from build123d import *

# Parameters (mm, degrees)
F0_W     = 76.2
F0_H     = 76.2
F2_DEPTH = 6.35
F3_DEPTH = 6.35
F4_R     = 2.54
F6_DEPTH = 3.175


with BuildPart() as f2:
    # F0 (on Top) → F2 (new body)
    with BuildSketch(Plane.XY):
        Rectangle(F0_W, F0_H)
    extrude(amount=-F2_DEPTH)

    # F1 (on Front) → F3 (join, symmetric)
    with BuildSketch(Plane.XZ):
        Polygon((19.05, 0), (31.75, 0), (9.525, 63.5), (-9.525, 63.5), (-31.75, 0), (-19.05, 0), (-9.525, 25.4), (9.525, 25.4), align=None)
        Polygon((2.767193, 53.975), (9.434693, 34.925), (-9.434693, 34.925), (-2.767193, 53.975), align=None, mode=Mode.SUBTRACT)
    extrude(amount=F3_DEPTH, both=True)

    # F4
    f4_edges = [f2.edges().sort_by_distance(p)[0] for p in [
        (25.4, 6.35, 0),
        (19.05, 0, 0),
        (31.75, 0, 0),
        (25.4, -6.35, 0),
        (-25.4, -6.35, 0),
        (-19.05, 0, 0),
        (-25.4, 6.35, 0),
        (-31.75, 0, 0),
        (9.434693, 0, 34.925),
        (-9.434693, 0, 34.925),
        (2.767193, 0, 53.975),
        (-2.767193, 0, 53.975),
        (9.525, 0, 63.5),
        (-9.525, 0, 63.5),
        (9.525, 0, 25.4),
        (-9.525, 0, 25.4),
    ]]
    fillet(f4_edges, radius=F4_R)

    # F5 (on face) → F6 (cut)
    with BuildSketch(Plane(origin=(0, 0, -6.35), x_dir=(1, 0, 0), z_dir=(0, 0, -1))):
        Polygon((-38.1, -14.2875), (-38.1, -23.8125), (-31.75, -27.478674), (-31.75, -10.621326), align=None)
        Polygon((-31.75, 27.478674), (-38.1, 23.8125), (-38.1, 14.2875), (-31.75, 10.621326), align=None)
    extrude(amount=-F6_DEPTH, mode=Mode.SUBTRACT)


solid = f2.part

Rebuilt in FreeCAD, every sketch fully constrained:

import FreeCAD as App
import Part
import Sketcher
from FreeCAD import Vector
Q = App.Units.Quantity


def edges_at(feature, points):
    """Names of the edges that pass closest to the given points."""
    edges = feature.Shape.Edges
    near = lambda p: min(range(len(edges)), key=lambda i: edges[i].distToShape(Part.Vertex(*p))[0])
    return sorted({f"Edge{near(p) + 1}" for p in points})

doc = App.newDocument("Part")
body = doc.addObject("PartDesign::Body", "Body")

sketch1 = body.newObject("Sketcher::SketchObject", "Sketch")
sketch1.AttachmentSupport = (doc.getObject("XY_Plane"), [""])
sketch1.MapMode = "FlatFace"
sketch1.addGeometry([
    Part.LineSegment(Vector(-38, 38, 0), Vector(-38, -38, 0)),
    Part.LineSegment(Vector(-38, -38, 0), Vector(38, -38, 0)),
    Part.LineSegment(Vector(38, -38, 0), Vector(38, 38, 0)),
    Part.LineSegment(Vector(38, 38, 0), Vector(-38, 38, 0)),
], False)
sketch1.addConstraint([
    Sketcher.Constraint("Coincident", 0, 2, 1, 1),
    Sketcher.Constraint("Coincident", 1, 2, 2, 1),
    Sketcher.Constraint("Coincident", 2, 2, 3, 1),
    Sketcher.Constraint("Coincident", 3, 2, 0, 1),
    Sketcher.Constraint("Vertical", 0),
    Sketcher.Constraint("Horizontal", 1),
    Sketcher.Constraint("Vertical", 2),
    Sketcher.Constraint("Horizontal", 3),
    Sketcher.Constraint("Symmetric", 0, 2, 2, 2, -1, 1),
    Sketcher.Constraint("Equal", 3, 0),
    Sketcher.Constraint("DistanceX", 1, 1, 1, 2, Q("3 in")),
])
pad1 = body.newObject("PartDesign::Pad", "Pad")
pad1.Profile = sketch1
pad1.Length = Q("0.25 in")
pad1.Reversed = True

sketch2 = body.newObject("Sketcher::SketchObject", "Sketch001")
sketch2.AttachmentSupport = (doc.getObject("XZ_Plane"), [""])
sketch2.MapMode = "FlatFace"
sketch2.addGeometry([
    Part.LineSegment(Vector(19, 0, 0), Vector(32, 0, 0)),
    Part.LineSegment(Vector(32, 0, 0), Vector(10, 64, 0)),
    Part.LineSegment(Vector(10, 64, 0), Vector(-10, 64, 0)),
    Part.LineSegment(Vector(-10, 64, 0), Vector(-32, 0, 0)),
    Part.LineSegment(Vector(-32, 0, 0), Vector(-19, 0, 0)),
    Part.LineSegment(Vector(-19, 0, 0), Vector(-10, 25, 0)),
    Part.LineSegment(Vector(-10, 25, 0), Vector(10, 25, 0)),
    Part.LineSegment(Vector(10, 25, 0), Vector(19, 0, 0)),
    Part.LineSegment(Vector(-3, 54, 0), Vector(3, 54, 0)),
    Part.LineSegment(Vector(3, 54, 0), Vector(9, 35, 0)),
    Part.LineSegment(Vector(9, 35, 0), Vector(-9, 35, 0)),
    Part.LineSegment(Vector(-9, 35, 0), Vector(-3, 54, 0)),
], False)
sketch2.addConstraint([
    Sketcher.Constraint("Coincident", 0, 2, 1, 1),
    Sketcher.Constraint("Coincident", 1, 2, 2, 1),
    Sketcher.Constraint("Coincident", 2, 2, 3, 1),
    Sketcher.Constraint("Coincident", 3, 2, 4, 1),
    Sketcher.Constraint("Coincident", 4, 2, 5, 1),
    Sketcher.Constraint("Coincident", 5, 2, 6, 1),
    Sketcher.Constraint("Coincident", 6, 2, 7, 1),
    Sketcher.Constraint("Coincident", 7, 2, 0, 1),
    Sketcher.Constraint("Coincident", 8, 2, 9, 1),
    Sketcher.Constraint("Coincident", 9, 2, 10, 1),
    Sketcher.Constraint("Coincident", 10, 2, 11, 1),
    Sketcher.Constraint("Coincident", 11, 2, 8, 1),
    Sketcher.Constraint("Horizontal", 0),
    Sketcher.Constraint("Horizontal", 2),
    Sketcher.Constraint("Horizontal", 4),
    Sketcher.Constraint("Horizontal", 6),
    Sketcher.Constraint("Horizontal", 8),
    Sketcher.Constraint("Horizontal", 10),
    Sketcher.Constraint("Symmetric", 0, 2, 3, 2, -1, 1),
    Sketcher.Constraint("Symmetric", 4, 2, 7, 2, -2),
    Sketcher.Constraint("Parallel", 1, 9),
    Sketcher.Constraint("Parallel", 3, 11),
    Sketcher.Constraint("Vertical", 2, 2, 5, 2),
    Sketcher.Constraint("Vertical", 1, 2, 6, 2),
    Sketcher.Constraint("Equal", 1, 3),
    Sketcher.Constraint("DistanceX", 0, 1, 0, 2, Q("0.5 in")),
    Sketcher.Constraint("DistanceY", -1, 1, 5, 2, Q("1 in")),
    Sketcher.Constraint("DistanceX", 4, 2, 0, 2, Q("2 in")),
    Sketcher.Constraint("DistanceX", 2, 2, 2, 1, Q("0.75 in")),
    Sketcher.Constraint("DistanceY", -1, 1, 1, 2, Q("2.5 in")),
    Sketcher.Constraint("DistanceY", 9, 2, 8, 2, Q("0.75 in")),
    Sketcher.Constraint("DistanceY", -1, 1, 8, 2, Q("2.125 in")),
    Sketcher.Constraint("DistanceX", 8, 1, 8, 2, 5.534386),
    Sketcher.Constraint("DistanceX", -1, 1, 8, 2, 2.767193),
])
pad2 = body.newObject("PartDesign::Pad", "Pad001")
pad2.Profile = sketch2
pad2.Length = Q("0.5 in")
pad2.Midplane = True
doc.recompute()

fillet = body.newObject("PartDesign::Fillet", "Fillet")
fillet.Base = (pad2, edges_at(pad2, [
    (25.4, 6.35, 0),
    (19.05, 0, 0),
    (31.75, 0, 0),
    (25.4, -6.35, 0),
    (-25.4, -6.35, 0),
    (-19.05, 0, 0),
    (-25.4, 6.35, 0),
    (-31.75, 0, 0),
    (9.435, 0, 34.925),
    (-9.435, 0, 34.925),
    (2.767, 0, 53.975),
    (-2.767, 0, 53.975),
    (9.525, 0, 63.5),
    (-9.525, 0, 63.5),
    (9.525, 0, 25.4),
    (-9.525, 0, 25.4),
]))
fillet.Radius = Q("0.1 in")

sketch3 = body.newObject("Sketcher::SketchObject", "Sketch002")
sketch3.AttachmentSupport = (doc.getObject("XY_Plane"), [""])
sketch3.MapMode = "FlatFace"
sketch3.AttachmentOffset = App.Placement(Vector(0, 0, -0.25 * 25.4), App.Rotation())
sketch3.addGeometry([
    Part.LineSegment(Vector(-38, 14, 0), Vector(-38, 24, 0)),
    Part.LineSegment(Vector(-38, 24, 0), Vector(-32, 27, 0)),
    Part.LineSegment(Vector(-32, 27, 0), Vector(-32, 11, 0)),
    Part.LineSegment(Vector(-32, 11, 0), Vector(-38, 14, 0)),
    Part.LineSegment(Vector(-32, -27, 0), Vector(-38, -24, 0)),
    Part.LineSegment(Vector(-38, -24, 0), Vector(-38, -14, 0)),
    Part.LineSegment(Vector(-38, -14, 0), Vector(-32, -11, 0)),
    Part.LineSegment(Vector(-32, -11, 0), Vector(-32, -27, 0)),
], False)
sketch3.addConstraint([
    Sketcher.Constraint("Coincident", 0, 2, 1, 1),
    Sketcher.Constraint("Coincident", 1, 2, 2, 1),
    Sketcher.Constraint("Coincident", 2, 2, 3, 1),
    Sketcher.Constraint("Coincident", 3, 2, 0, 1),
    Sketcher.Constraint("Coincident", 4, 2, 5, 1),
    Sketcher.Constraint("Coincident", 5, 2, 6, 1),
    Sketcher.Constraint("Coincident", 6, 2, 7, 1),
    Sketcher.Constraint("Coincident", 7, 2, 4, 1),
    Sketcher.Constraint("Vertical", 0),
    Sketcher.Constraint("Vertical", 2),
    Sketcher.Constraint("Vertical", 5),
    Sketcher.Constraint("Vertical", 7),
    Sketcher.Constraint("Symmetric", 0, 2, 4, 2, -1),
    Sketcher.Constraint("Symmetric", 2, 2, 6, 2, -1),
    Sketcher.Constraint("Parallel", 3, 4),
    Sketcher.Constraint("Parallel", 1, 6),
    Sketcher.Constraint("Equal", 0, 5),
    Sketcher.Constraint("Angle", 1, Q("29.999999 deg")),
    Sketcher.Constraint("DistanceX", 0, 2, -1, 1, Q("1.5 in")),
    Sketcher.Constraint("DistanceY", 4, 2, 3, 2, Q("1.5 in")),
    Sketcher.Constraint("DistanceY", 0, 1, 0, 2, Q("0.375 in")),
    Sketcher.Constraint("DistanceX", 1, 2, -1, 1, Q("1.25 in")),
])
pocket1 = body.newObject("PartDesign::Pocket", "Pocket")
pocket1.Profile = sketch3
pocket1.Length = Q("0.125 in")
pocket1.Reversed = True

doc.recompute()
